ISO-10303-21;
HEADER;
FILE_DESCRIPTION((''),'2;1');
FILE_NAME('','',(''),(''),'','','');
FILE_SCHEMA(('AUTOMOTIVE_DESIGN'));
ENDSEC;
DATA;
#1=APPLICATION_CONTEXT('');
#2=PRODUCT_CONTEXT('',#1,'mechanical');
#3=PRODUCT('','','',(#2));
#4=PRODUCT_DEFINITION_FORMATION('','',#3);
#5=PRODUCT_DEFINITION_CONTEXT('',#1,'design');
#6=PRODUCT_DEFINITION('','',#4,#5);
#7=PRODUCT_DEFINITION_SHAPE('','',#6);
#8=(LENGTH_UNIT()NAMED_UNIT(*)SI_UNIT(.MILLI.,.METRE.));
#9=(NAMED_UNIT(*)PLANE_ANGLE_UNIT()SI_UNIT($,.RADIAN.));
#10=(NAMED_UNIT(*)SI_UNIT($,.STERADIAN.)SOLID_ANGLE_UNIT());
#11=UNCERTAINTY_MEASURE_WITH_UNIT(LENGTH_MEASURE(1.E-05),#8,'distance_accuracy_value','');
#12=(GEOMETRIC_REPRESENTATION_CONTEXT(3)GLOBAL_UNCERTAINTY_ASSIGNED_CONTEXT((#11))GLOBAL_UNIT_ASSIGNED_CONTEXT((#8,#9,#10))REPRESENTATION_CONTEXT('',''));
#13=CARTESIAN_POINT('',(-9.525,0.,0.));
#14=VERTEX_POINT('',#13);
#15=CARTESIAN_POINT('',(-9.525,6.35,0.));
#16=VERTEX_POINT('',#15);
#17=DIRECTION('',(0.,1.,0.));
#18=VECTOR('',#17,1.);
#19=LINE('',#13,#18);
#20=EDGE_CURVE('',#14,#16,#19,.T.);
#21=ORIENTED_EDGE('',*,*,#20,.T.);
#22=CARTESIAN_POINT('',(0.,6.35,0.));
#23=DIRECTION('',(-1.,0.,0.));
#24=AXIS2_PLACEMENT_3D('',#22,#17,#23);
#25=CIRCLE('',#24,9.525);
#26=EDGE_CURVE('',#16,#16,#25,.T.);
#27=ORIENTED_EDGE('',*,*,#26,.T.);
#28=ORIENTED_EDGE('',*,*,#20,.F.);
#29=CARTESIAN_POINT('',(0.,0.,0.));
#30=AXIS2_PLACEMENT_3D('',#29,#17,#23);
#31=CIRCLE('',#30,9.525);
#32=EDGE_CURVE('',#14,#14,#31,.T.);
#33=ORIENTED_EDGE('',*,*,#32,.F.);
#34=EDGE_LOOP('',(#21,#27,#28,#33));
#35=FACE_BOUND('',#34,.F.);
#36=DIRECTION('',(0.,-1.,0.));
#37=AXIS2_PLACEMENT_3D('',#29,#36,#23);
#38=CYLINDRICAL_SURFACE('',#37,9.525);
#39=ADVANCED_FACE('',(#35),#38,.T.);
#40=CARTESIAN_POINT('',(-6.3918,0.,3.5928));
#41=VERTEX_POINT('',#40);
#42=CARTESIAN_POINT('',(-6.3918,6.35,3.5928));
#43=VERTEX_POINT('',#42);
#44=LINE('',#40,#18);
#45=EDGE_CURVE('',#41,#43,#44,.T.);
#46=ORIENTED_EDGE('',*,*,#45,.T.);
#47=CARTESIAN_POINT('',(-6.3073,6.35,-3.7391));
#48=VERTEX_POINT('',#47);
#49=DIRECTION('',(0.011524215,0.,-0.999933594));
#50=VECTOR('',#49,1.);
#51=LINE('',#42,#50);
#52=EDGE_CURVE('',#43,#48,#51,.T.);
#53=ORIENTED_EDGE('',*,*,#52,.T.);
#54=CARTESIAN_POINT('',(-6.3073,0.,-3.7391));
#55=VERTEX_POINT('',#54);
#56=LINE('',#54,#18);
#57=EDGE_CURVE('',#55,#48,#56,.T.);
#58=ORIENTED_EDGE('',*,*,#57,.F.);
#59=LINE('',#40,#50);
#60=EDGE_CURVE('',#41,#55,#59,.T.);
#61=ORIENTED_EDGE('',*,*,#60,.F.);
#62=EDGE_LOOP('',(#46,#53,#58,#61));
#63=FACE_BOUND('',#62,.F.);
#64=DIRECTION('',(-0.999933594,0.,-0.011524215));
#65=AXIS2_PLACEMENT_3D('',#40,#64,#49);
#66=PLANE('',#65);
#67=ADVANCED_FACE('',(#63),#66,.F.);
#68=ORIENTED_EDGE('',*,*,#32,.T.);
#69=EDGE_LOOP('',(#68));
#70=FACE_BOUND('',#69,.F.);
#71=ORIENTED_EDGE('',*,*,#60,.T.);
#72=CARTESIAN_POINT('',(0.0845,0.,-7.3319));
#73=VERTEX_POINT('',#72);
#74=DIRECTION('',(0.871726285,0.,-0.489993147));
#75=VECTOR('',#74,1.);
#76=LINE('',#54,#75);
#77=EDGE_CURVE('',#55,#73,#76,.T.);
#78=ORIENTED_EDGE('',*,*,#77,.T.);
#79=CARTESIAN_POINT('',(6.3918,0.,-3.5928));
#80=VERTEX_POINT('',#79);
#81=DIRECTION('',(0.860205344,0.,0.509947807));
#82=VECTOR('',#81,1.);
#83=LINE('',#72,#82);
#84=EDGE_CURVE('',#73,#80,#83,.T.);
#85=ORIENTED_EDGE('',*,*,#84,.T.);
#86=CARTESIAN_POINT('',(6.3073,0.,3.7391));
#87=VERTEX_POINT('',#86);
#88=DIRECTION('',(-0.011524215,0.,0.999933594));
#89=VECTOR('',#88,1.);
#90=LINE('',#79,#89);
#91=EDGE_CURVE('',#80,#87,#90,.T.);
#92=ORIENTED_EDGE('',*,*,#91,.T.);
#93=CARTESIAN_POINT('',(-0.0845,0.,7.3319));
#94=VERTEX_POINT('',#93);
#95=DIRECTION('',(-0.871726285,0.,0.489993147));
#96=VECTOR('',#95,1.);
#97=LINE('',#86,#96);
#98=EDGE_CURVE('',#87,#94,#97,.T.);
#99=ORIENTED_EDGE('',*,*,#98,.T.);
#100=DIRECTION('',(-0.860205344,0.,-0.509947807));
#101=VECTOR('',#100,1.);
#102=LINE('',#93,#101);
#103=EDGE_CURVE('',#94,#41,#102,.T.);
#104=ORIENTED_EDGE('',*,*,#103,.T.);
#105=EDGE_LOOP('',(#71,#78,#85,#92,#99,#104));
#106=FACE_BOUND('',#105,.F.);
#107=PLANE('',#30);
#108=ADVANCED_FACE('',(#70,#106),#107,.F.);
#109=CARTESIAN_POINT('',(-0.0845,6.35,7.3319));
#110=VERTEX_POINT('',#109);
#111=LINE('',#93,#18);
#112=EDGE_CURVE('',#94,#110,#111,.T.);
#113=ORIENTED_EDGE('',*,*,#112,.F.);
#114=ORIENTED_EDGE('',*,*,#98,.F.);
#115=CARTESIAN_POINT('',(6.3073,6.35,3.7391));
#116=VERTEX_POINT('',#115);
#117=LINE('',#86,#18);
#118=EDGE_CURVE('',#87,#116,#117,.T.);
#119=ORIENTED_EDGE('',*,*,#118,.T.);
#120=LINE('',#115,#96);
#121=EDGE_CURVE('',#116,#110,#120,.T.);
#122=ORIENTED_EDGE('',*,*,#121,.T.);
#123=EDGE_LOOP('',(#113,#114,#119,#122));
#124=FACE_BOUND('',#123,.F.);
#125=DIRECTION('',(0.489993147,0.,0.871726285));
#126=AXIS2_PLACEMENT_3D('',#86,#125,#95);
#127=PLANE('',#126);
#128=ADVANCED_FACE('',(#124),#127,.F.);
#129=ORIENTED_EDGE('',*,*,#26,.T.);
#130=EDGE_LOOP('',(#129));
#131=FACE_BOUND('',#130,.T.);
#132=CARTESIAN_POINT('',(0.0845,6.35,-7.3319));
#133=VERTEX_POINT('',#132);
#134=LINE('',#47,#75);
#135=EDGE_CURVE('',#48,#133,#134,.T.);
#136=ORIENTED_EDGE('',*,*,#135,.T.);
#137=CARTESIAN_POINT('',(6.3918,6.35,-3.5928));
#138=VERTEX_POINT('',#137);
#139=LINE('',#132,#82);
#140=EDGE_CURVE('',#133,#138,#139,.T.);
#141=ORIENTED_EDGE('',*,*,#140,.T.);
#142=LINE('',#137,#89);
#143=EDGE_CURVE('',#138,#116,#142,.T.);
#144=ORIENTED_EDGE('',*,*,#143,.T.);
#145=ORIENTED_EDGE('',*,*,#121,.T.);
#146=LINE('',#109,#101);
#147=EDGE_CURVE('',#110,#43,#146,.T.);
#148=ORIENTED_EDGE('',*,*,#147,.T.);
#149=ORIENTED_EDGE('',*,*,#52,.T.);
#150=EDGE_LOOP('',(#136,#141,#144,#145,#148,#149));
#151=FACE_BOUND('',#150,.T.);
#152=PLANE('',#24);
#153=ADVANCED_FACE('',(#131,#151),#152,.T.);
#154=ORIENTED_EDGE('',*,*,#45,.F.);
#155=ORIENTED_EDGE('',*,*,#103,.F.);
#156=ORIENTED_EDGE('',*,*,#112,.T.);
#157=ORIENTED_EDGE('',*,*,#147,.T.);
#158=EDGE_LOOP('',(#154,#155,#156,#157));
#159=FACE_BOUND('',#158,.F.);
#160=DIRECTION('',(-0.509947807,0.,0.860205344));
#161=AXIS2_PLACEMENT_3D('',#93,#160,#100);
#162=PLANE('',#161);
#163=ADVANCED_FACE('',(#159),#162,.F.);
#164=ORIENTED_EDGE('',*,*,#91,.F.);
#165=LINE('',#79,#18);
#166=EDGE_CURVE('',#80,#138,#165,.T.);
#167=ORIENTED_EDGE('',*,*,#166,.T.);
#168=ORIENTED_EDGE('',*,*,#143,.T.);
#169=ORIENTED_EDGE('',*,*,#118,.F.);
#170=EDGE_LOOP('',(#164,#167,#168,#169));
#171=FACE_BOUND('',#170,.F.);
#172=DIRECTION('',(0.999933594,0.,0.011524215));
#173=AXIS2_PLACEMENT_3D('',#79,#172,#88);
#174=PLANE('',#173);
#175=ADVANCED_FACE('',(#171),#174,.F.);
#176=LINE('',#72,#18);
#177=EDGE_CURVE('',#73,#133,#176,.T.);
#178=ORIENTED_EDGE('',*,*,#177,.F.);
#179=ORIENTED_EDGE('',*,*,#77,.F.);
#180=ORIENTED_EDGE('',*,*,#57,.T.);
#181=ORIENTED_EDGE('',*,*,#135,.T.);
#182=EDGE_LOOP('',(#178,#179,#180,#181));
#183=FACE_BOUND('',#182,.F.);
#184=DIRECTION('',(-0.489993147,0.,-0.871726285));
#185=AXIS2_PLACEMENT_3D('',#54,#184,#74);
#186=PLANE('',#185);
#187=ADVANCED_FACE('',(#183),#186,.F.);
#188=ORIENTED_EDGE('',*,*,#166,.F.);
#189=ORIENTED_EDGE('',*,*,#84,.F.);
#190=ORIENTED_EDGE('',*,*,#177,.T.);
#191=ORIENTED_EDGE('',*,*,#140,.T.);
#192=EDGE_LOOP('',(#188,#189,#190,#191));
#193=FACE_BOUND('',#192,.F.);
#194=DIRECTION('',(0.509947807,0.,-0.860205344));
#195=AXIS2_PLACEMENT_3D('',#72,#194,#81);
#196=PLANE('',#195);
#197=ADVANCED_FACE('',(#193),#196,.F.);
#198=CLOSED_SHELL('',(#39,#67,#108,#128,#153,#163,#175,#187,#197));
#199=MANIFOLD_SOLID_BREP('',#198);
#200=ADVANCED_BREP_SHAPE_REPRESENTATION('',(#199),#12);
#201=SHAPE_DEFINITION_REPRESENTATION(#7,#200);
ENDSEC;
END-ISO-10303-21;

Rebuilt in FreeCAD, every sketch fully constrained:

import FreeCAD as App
import Part
import Sketcher
from FreeCAD import Vector
Q = App.Units.Quantity


def add_polygon(sketch, points):
    """Adds a closed chain of lines whose ends are joined by coincident constraints."""
    first, n = sketch.GeometryCount, len(points)
    for a, b in zip(points, points[1:] + points[:1]):
        sketch.addGeometry(Part.LineSegment(App.Vector(*a, 0), App.Vector(*b, 0)), False)
    for i in range(n):
        sketch.addConstraint(Sketcher.Constraint("Coincident", first + i, 2, first + (i + 1) % n, 1))

doc = App.newDocument("Part")
body = doc.addObject("PartDesign::Body", "Body")

sketch1 = body.newObject("Sketcher::SketchObject", "Sketch")
sketch1.AttachmentSupport = (doc.getObject("XZ_Plane"), [""])
sketch1.MapMode = "FlatFace"
sketch1.addGeometry(Part.Circle(Vector(0, 0, 0), Vector(0, 0, 1), 10), False)
add_polygon(sketch1, [(0, 7), (-6, 4), (-6, -4), (0, -7), (6, -4), (6, 4)])
sketch1.addConstraint(Sketcher.Constraint("Coincident", 0, 3, -1, 1))
sketch1.addConstraint(Sketcher.Constraint("Symmetric", 1, 2, 4, 2, -1, 1))
sketch1.addConstraint(Sketcher.Constraint("Symmetric", 2, 2, 5, 2, -1, 1))
sketch1.addConstraint(Sketcher.Constraint("Symmetric", 3, 2, 6, 2, -1, 1))
sketch1.addConstraint(Sketcher.Constraint("Equal", 1, 2))
sketch1.addConstraint(Sketcher.Constraint("Equal", 2, 3))
sketch1.addConstraint(Sketcher.Constraint("Diameter", 0, Q("0.75 in")))
sketch1.addConstraint(Sketcher.Constraint("Angle", 1, Q("-149.3396 deg")))
sketch1.addConstraint(Sketcher.Constraint("Angle", 2, Q("-89.3397 deg")))
sketch1.addConstraint(Sketcher.Constraint("Angle", 3, Q("-29.3401 deg")))
sketch1.addConstraint(Sketcher.Constraint("DistanceX", 3, 2, 5, 2, Q("0.245 in")))
pad1 = body.newObject("PartDesign::Pad", "Pad")
pad1.Profile = sketch1
pad1.Length = Q("0.25 in")
pad1.Reversed = True

doc.recompute()
